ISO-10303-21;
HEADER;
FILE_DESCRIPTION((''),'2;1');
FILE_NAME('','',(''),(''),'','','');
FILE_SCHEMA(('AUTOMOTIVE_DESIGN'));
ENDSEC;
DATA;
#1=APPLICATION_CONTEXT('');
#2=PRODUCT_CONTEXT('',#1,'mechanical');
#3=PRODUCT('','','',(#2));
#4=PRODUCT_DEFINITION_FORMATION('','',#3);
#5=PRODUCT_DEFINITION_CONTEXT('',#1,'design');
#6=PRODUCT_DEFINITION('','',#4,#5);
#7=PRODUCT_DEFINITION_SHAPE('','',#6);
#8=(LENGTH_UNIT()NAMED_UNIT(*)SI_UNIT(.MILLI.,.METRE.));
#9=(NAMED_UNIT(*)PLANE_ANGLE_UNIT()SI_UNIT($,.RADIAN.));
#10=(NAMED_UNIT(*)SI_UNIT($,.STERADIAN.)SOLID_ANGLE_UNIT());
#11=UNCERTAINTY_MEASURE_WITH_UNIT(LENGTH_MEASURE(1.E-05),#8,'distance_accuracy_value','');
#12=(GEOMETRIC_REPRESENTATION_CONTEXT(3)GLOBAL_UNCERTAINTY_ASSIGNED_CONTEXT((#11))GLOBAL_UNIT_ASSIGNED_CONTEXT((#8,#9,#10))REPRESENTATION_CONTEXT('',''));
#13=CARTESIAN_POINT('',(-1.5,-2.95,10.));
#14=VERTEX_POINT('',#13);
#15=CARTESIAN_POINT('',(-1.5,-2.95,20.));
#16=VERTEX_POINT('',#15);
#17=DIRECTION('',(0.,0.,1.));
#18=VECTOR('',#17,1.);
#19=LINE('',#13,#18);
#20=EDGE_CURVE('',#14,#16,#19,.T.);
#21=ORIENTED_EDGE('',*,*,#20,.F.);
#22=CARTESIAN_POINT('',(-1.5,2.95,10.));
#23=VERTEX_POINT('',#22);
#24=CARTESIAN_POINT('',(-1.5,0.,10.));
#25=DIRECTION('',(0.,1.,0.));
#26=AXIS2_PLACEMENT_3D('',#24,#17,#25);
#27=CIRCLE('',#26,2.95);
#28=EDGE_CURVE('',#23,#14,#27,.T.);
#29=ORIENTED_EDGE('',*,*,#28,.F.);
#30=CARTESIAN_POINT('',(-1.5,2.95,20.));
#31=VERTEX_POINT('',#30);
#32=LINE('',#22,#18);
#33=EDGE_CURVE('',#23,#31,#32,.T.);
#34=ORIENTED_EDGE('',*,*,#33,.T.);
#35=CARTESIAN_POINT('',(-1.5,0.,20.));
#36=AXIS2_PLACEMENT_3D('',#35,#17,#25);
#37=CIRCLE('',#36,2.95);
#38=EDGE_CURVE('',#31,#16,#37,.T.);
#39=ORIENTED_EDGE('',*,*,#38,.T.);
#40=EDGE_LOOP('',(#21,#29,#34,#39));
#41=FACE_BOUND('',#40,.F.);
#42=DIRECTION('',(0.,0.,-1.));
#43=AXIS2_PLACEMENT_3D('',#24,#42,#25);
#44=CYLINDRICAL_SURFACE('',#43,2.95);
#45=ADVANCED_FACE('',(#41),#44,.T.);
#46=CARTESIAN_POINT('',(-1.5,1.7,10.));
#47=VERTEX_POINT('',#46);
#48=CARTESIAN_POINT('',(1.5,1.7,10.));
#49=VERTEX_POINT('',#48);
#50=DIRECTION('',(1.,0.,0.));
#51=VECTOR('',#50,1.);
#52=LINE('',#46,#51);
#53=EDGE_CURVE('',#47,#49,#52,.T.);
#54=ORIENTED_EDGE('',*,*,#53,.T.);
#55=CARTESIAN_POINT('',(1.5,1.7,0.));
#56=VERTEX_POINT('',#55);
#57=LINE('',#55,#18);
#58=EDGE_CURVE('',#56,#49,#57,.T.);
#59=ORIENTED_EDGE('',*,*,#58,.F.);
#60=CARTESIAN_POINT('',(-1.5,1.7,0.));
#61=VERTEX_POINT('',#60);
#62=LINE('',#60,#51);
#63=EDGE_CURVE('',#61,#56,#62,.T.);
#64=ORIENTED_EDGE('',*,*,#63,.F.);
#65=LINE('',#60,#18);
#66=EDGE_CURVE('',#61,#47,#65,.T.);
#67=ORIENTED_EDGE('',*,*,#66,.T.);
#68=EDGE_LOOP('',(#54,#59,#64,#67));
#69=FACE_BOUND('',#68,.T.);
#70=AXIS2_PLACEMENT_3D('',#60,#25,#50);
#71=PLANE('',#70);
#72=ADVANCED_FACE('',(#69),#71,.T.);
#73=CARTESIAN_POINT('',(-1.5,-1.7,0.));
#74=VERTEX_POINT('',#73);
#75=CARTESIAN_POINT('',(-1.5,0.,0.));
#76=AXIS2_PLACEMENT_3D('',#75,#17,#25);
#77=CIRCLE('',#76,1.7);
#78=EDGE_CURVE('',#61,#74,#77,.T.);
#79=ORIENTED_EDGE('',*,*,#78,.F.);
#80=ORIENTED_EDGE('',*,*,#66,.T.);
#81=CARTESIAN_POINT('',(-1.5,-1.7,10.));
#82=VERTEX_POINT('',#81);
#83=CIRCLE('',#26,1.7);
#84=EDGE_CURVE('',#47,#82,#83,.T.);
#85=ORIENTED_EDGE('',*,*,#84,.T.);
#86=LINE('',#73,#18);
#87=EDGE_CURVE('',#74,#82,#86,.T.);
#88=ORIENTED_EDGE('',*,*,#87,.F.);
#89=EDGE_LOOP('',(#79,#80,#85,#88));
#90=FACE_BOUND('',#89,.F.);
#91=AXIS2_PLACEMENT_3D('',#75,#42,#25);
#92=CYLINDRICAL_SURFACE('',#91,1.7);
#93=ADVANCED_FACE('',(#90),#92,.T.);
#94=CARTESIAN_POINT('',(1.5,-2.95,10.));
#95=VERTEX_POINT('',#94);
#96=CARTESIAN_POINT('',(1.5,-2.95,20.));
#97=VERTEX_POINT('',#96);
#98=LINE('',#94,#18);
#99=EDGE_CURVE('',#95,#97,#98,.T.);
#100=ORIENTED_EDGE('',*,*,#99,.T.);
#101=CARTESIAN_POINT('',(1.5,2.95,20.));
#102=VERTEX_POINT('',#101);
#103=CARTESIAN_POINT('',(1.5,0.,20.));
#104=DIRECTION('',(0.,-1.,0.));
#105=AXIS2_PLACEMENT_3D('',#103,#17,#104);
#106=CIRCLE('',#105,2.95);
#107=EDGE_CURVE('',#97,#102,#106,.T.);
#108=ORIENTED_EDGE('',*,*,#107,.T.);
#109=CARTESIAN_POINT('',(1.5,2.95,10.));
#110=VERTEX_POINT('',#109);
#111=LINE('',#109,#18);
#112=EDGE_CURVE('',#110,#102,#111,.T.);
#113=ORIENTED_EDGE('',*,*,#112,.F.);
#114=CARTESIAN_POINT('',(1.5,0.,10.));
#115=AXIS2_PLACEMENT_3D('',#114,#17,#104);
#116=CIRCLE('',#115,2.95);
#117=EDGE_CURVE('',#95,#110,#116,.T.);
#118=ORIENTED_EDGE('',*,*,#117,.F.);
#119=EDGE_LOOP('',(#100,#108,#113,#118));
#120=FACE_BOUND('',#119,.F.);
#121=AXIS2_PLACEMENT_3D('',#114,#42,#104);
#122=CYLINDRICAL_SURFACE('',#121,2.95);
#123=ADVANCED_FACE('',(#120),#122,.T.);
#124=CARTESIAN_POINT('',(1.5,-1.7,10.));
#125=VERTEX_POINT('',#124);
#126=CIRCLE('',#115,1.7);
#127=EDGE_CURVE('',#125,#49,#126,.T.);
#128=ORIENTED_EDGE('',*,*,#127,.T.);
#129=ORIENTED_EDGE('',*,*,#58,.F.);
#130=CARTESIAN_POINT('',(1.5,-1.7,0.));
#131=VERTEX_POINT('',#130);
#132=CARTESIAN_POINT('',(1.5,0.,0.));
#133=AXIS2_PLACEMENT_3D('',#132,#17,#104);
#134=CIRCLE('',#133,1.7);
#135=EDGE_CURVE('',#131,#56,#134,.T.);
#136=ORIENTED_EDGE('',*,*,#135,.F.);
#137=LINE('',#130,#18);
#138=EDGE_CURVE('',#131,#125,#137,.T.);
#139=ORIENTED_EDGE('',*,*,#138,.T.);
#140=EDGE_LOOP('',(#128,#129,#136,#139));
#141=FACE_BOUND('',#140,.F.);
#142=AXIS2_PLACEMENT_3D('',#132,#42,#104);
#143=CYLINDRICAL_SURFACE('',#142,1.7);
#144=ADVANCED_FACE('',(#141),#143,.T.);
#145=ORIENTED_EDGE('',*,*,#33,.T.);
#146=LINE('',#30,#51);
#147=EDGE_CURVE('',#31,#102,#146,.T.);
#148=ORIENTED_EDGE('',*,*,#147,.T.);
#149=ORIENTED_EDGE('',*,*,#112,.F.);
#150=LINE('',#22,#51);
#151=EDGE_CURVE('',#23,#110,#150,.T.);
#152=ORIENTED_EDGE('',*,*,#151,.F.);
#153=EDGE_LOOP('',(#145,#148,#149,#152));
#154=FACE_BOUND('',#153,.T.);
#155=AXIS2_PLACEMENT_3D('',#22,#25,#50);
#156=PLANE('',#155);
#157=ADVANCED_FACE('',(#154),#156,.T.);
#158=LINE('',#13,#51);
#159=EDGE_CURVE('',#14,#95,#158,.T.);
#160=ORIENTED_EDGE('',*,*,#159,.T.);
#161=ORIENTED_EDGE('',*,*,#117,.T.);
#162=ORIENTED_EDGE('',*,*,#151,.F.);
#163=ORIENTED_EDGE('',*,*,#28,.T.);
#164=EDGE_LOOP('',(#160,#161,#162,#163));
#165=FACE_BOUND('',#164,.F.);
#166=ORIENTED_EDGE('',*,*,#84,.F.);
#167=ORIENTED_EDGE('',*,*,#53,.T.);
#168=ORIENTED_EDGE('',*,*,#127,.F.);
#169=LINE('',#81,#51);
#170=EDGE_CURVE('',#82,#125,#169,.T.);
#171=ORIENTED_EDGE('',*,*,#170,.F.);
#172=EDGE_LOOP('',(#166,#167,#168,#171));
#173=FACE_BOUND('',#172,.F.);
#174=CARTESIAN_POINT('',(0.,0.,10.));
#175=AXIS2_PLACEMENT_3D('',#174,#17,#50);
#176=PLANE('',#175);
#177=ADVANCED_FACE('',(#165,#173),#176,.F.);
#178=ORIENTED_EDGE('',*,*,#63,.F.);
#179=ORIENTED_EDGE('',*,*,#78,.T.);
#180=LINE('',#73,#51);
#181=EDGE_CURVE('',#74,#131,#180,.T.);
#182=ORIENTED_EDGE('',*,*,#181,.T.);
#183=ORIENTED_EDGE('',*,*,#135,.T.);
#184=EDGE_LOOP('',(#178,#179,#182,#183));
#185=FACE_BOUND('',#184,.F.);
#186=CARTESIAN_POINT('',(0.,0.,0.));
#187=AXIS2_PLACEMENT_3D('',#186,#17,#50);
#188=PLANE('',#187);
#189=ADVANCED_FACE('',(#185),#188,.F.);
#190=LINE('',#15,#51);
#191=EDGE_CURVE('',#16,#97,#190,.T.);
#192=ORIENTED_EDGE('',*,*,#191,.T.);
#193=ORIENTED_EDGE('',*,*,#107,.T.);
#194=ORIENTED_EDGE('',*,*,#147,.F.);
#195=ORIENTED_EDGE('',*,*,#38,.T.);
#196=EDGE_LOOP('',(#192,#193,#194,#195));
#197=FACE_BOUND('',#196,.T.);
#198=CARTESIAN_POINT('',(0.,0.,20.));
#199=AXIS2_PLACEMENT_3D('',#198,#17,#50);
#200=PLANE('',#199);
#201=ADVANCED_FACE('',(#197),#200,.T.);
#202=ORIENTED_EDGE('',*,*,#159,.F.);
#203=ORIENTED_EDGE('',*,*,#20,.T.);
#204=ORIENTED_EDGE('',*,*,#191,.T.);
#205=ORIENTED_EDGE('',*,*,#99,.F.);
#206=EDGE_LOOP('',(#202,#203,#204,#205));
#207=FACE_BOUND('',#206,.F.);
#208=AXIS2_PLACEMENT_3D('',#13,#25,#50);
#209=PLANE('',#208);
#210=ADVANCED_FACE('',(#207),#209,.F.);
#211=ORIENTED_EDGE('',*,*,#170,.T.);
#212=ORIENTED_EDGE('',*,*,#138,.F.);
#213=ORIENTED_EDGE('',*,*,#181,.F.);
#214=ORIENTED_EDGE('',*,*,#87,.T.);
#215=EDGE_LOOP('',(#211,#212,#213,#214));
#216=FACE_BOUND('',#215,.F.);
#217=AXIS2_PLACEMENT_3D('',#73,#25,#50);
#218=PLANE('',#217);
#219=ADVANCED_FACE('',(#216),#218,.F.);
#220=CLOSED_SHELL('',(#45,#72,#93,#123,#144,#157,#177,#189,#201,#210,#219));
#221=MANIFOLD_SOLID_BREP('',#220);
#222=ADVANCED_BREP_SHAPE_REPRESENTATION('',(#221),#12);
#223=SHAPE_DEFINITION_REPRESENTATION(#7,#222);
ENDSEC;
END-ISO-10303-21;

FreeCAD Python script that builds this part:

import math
import FreeCAD as App
import Part
import Sketcher
Q = App.Units.Quantity

doc = App.newDocument("Part")
params = doc.addObject("Spreadsheet::Sheet", "Params")
for row, (alias, value) in enumerate([
    ("sketch1_radius", "1.7 mm"),
    ("sketch1_width", "3 mm"),
    ("pad1_length", "10 mm"),
    ("sketch2_width", "3 mm"),
    ("sketch2_radius", "2.95 mm"),
    ("pad2_length", "10 mm"),
], start=1):
    params.set(f"A{row}", alias)
    params.set(f"B{row}", "=" + value)
    params.setAlias(f"B{row}", alias)

body = doc.addObject("PartDesign::Body", "Body")

# Sketch on XY plane
sketch1 = doc.addObject("Sketcher::SketchObject", "Sketch")
body.addObject(sketch1)
sketch1.AttachmentSupport = (doc.XY_Plane, [""])
sketch1.MapMode = "FlatFace"
sketch1.addGeometry([
    Part.ArcOfCircle(Part.Circle(App.Vector(-1.5, 0, 0), App.Vector(0, 0, 1), 1.7), math.radians(90), math.radians(270)),
    Part.LineSegment(App.Vector(-1.5, -1.7, 0), App.Vector(1.5, -1.7, 0)),
    Part.ArcOfCircle(Part.Circle(App.Vector(1.5, 0, 0), App.Vector(0, 0, 1), 1.7), math.radians(-90), math.radians(90)),
    Part.LineSegment(App.Vector(1.5, 1.7, 0), App.Vector(-1.5, 1.7, 0)),
], False)
sketch1.addConstraint([
    Sketcher.Constraint("Tangent", 0, 2, 1, 1),
    Sketcher.Constraint("Tangent", 1, 2, 2, 1),
    Sketcher.Constraint("Tangent", 2, 2, 3, 1),
    Sketcher.Constraint("Tangent", 3, 2, 0, 1),
    Sketcher.Constraint("Horizontal", 1),
    Sketcher.Constraint("Horizontal", 3),
    Sketcher.Constraint("Symmetric", 0, 3, 2, 3, -1, 1),
    Sketcher.Constraint("Radius", 0, Q("1.7 mm")),
    Sketcher.Constraint("DistanceX", 1, 1, 1, 2, Q("3 mm")),
])
sketch1.setExpression("Constraints[7]", "Params.sketch1_radius")
sketch1.setExpression("Constraints[8]", "Params.sketch1_width")
pad1 = doc.addObject("PartDesign::Pad", "Pad")
body.addObject(pad1)
pad1.Profile = sketch1
pad1.setExpression("Length", "Params.pad1_length")
body2 = doc.addObject("PartDesign::Body", "Body001")

# Sketch on XY plane
sketch2 = doc.addObject("Sketcher::SketchObject", "Sketch001")
body2.addObject(sketch2)
sketch2.AttachmentSupport = (doc.getObject("XY_Plane001"), [""])
sketch2.MapMode = "FlatFace"
sketch2.AttachmentOffset = App.Placement(App.Vector(0, 0, 10), App.Rotation())
sketch2.addGeometry([
    Part.ArcOfCircle(Part.Circle(App.Vector(-1.5, 0, 0), App.Vector(0, 0, 1), 3), math.radians(90), math.radians(270)),
    Part.LineSegment(App.Vector(-1.5, -3, 0), App.Vector(1.5, -3, 0)),
    Part.ArcOfCircle(Part.Circle(App.Vector(1.5, 0, 0), App.Vector(0, 0, 1), 3), math.radians(-90), math.radians(90)),
    Part.LineSegment(App.Vector(1.5, 3, 0), App.Vector(-1.5, 3, 0)),
], False)
sketch2.addConstraint([
    Sketcher.Constraint("Tangent", 0, 2, 1, 1),
    Sketcher.Constraint("Tangent", 1, 2, 2, 1),
    Sketcher.Constraint("Tangent", 2, 2, 3, 1),
    Sketcher.Constraint("Tangent", 3, 2, 0, 1),
    Sketcher.Constraint("Horizontal", 1),
    Sketcher.Constraint("Horizontal", 3),
    Sketcher.Constraint("Symmetric", 0, 3, 2, 3, -1, 1),
    Sketcher.Constraint("DistanceX", 1, 1, 1, 2, Q("3 mm")),
    Sketcher.Constraint("Radius", 0, Q("2.95 mm")),
])
sketch2.setExpression("Constraints[7]", "Params.sketch2_width")
sketch2.setExpression("Constraints[8]", "Params.sketch2_radius")
pad2 = doc.addObject("PartDesign::Pad", "Pad001")
body2.addObject(pad2)
pad2.Profile = sketch2
pad2.setExpression("Length", "Params.pad2_length")
doc.recompute()

boolean = doc.addObject("PartDesign::Boolean", "Boolean")
body2.addObject(boolean)
boolean.Type = "Fuse"
boolean.addObjects([body])

doc.recompute()
